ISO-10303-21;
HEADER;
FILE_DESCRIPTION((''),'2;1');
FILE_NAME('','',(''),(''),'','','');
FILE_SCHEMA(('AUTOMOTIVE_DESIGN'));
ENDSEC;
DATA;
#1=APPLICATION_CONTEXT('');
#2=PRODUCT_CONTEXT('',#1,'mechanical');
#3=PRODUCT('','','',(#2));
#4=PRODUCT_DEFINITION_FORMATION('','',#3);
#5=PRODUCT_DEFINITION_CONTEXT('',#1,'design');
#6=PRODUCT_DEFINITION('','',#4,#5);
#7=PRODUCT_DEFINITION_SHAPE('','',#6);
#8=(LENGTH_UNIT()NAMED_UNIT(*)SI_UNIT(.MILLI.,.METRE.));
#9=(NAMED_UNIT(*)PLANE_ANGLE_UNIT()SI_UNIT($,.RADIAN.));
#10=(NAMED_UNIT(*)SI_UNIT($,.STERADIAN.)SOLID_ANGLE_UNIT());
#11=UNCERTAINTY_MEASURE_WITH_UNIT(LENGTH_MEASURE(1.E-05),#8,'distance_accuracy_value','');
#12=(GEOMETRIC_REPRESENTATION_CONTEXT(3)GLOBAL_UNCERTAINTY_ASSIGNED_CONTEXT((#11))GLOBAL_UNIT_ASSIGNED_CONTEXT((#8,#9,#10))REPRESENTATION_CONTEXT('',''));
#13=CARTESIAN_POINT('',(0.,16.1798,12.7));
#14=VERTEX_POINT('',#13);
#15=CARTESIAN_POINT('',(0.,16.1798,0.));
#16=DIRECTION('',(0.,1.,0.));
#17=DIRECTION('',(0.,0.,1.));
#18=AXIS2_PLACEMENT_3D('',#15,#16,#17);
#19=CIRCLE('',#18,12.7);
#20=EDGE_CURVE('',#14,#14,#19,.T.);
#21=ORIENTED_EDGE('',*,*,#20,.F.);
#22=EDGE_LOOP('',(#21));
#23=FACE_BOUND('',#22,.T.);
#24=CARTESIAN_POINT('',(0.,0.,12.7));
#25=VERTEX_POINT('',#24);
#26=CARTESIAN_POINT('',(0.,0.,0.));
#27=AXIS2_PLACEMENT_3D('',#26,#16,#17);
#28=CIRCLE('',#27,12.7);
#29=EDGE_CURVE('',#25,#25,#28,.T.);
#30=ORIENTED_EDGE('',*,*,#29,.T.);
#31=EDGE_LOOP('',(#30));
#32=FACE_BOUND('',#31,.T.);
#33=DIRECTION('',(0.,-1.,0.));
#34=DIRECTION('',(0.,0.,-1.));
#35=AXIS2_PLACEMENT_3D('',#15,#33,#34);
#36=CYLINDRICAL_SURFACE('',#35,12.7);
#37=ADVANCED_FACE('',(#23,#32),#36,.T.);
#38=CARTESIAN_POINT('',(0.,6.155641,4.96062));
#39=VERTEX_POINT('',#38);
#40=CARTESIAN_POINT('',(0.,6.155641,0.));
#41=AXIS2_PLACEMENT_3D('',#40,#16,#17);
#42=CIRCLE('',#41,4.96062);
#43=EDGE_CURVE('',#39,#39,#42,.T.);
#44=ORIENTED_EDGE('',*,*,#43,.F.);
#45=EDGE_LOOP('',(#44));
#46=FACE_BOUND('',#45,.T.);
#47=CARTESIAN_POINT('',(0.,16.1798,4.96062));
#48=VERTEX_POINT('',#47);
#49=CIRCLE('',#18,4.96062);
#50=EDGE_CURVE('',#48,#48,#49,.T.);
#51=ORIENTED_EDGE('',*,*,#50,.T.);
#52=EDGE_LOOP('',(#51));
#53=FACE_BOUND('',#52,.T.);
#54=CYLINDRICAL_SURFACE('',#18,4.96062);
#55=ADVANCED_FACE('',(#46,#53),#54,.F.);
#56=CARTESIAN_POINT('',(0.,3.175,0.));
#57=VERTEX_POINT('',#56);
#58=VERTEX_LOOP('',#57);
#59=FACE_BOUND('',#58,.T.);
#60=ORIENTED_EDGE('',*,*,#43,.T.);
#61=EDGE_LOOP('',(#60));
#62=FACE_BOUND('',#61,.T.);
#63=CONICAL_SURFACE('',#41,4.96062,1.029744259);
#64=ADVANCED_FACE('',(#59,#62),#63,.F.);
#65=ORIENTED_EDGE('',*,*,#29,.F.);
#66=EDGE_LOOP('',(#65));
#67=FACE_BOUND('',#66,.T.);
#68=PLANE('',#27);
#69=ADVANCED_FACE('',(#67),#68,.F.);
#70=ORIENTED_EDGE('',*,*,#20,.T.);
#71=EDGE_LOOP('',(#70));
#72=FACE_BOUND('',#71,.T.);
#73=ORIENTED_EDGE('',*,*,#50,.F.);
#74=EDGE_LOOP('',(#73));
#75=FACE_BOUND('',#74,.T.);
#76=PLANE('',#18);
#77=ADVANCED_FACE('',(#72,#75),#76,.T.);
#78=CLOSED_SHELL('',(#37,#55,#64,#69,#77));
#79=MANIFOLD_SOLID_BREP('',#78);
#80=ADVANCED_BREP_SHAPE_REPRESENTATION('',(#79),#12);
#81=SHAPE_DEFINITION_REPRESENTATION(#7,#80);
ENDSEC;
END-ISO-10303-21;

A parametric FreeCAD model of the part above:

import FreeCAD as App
import Part
import Sketcher
Q = App.Units.Quantity

doc = App.newDocument("Part")
body = doc.addObject("PartDesign::Body", "Body")

sketch1 = body.newObject("Sketcher::SketchObject", "Sketch")
sketch1.AttachmentSupport = (doc.getObject("XZ_Plane"), [""])
sketch1.MapMode = "FlatFace"
sketch1.addGeometry(Part.Circle(App.Vector(0, 0, 0), App.Vector(0, 0, 1), 13), False)
sketch1.addConstraint([
    Sketcher.Constraint("Coincident", 0, 3, -1, 1),
    Sketcher.Constraint("Diameter", 0, Q("1 in")),
])
pad1 = body.newObject("PartDesign::Pad", "Pad")
pad1.Profile = sketch1
pad1.Length = Q("0.637 in")
pad1.Reversed = True

sketch2 = body.newObject("Sketcher::SketchObject", "Sketch001")
sketch2.AttachmentSupport = (doc.getObject("XZ_Plane"), [""])
sketch2.MapMode = "FlatFace"
sketch2.AttachmentOffset = App.Placement(App.Vector(0, 0, -0.637 * 25.4), App.Rotation())
sketch2.addGeometry(Part.Circle(App.Vector(0, 0, 0), App.Vector(0, 0, 1), 5), False)
sketch2.addConstraint([
    Sketcher.Constraint("Coincident", 0, 3, -1, 1),
    Sketcher.Constraint("Diameter", 0, Q("0.3906 in")),
])
doc.recompute()
hole = body.newObject("PartDesign::Hole", "Hole")
hole.Profile = sketch2
hole.ThreadType = "None"
hole.Diameter = Q("0.3906 in")
hole.DepthType = "Dimension"
hole.Depth = 10.024159
hole.DrillPoint = "Angled"
hole.DrillPointAngle = 118
hole.Reversed = True

doc.recompute()
